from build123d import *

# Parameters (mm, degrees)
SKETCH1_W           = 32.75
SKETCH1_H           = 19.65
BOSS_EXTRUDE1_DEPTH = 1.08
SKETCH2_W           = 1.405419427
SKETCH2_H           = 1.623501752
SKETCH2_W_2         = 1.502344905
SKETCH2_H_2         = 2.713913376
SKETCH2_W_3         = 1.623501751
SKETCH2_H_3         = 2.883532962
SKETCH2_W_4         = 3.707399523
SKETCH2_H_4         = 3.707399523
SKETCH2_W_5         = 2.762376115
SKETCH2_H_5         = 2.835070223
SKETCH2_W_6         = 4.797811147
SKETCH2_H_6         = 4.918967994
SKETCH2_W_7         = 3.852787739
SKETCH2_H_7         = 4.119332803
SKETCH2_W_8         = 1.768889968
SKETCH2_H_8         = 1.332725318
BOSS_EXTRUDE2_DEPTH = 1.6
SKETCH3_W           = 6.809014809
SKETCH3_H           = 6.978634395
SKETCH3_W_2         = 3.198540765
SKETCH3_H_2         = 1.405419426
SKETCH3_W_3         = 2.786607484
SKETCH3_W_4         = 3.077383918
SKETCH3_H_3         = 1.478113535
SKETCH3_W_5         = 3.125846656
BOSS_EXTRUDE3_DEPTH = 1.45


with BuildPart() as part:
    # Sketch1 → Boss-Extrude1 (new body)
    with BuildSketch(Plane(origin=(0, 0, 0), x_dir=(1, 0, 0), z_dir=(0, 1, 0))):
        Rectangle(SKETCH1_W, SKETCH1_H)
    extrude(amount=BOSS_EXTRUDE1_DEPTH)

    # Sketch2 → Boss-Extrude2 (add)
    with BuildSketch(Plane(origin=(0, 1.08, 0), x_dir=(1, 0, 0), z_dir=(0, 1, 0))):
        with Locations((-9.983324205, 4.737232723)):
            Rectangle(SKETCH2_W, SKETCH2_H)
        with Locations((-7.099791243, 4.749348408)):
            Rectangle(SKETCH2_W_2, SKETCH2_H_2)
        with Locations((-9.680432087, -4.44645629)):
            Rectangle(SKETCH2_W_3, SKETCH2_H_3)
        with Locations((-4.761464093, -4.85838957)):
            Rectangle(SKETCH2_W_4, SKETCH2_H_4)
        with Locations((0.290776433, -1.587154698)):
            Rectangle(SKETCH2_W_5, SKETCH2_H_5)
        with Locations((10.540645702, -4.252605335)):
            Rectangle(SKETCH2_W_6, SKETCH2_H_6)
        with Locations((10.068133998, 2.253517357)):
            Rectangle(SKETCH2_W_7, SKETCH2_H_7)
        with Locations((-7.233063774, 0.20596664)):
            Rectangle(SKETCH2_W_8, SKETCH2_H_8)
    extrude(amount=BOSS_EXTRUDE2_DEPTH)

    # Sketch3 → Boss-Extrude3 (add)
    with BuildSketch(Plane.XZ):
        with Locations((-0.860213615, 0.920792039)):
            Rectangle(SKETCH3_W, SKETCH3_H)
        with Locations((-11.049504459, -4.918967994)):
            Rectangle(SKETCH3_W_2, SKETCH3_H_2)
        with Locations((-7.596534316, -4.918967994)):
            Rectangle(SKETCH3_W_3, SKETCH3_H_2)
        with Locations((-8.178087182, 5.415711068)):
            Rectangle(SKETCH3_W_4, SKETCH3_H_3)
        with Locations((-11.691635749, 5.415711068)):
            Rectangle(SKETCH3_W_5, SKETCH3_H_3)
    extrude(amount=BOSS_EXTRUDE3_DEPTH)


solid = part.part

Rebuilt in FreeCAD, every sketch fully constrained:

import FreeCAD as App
import Part
import Sketcher
from FreeCAD import Vector

doc = App.newDocument("Part")
body = doc.addObject("PartDesign::Body", "Body")

sketch1 = body.newObject("Sketcher::SketchObject", "Sketch")
sketch1.AttachmentSupport = (doc.getObject("XZ_Plane"), [""])
sketch1.MapMode = "FlatFace"
sketch1.addGeometry([
    Part.LineSegment(Vector(-16, -10, 0), Vector(-16, 10, 0)),
    Part.LineSegment(Vector(-16, 10, 0), Vector(16, 10, 0)),
    Part.LineSegment(Vector(16, 10, 0), Vector(16, -10, 0)),
    Part.LineSegment(Vector(16, -10, 0), Vector(-16, -10, 0)),
], False)
sketch1.addConstraint([
    Sketcher.Constraint("Coincident", 0, 2, 1, 1),
    Sketcher.Constraint("Coincident", 1, 2, 2, 1),
    Sketcher.Constraint("Coincident", 2, 2, 3, 1),
    Sketcher.Constraint("Coincident", 3, 2, 0, 1),
    Sketcher.Constraint("Vertical", 0),
    Sketcher.Constraint("Horizontal", 1),
    Sketcher.Constraint("Vertical", 2),
    Sketcher.Constraint("Horizontal", 3),
    Sketcher.Constraint("Symmetric", 0, 2, 2, 2, -1, 1),
    Sketcher.Constraint("DistanceX", 1, 1, 1, 2, 32.75),
    Sketcher.Constraint("DistanceY", 0, 1, 0, 2, 19.65),
])
pad1 = body.newObject("PartDesign::Pad", "Pad")
pad1.Profile = sketch1
pad1.Length = 1.08
pad1.Reversed = True

sketch2 = body.newObject("Sketcher::SketchObject", "Sketch001")
sketch2.AttachmentSupport = (doc.getObject("XZ_Plane"), [""])
sketch2.MapMode = "FlatFace"
sketch2.AttachmentOffset = App.Placement(Vector(0, 0, -1.08), App.Rotation())
sketch2.addGeometry([
    Part.LineSegment(Vector(-10.7, -5.5, 0), Vector(-10.7, -3.9, 0)),
    Part.LineSegment(Vector(-10.7, -3.9, 0), Vector(-9.3, -3.9, 0)),
    Part.LineSegment(Vector(-9.3, -3.9, 0), Vector(-9.3, -5.5, 0)),
    Part.LineSegment(Vector(-9.3, -5.5, 0), Vector(-10.7, -5.5, 0)),
    Part.LineSegment(Vector(-7.9, -6.1, 0), Vector(-7.9, -3.4, 0)),
    Part.LineSegment(Vector(-7.9, -3.4, 0), Vector(-6.3, -3.4, 0)),
    Part.LineSegment(Vector(-6.3, -3.4, 0), Vector(-6.3, -6.1, 0)),
    Part.LineSegment(Vector(-6.3, -6.1, 0), Vector(-7.9, -6.1, 0)),
    Part.LineSegment(Vector(-10.5, 3, 0), Vector(-10.5, 5.9, 0)),
    Part.LineSegment(Vector(-10.5, 5.9, 0), Vector(-8.9, 5.9, 0)),
    Part.LineSegment(Vector(-8.9, 5.9, 0), Vector(-8.9, 3, 0)),
    Part.LineSegment(Vector(-8.9, 3, 0), Vector(-10.5, 3, 0)),
    Part.LineSegment(Vector(-6.6, 3, 0), Vector(-6.6, 6.7, 0)),
    Part.LineSegment(Vector(-6.6, 6.7, 0), Vector(-2.9, 6.7, 0)),
    Part.LineSegment(Vector(-2.9, 6.7, 0), Vector(-2.9, 3, 0)),
    Part.LineSegment(Vector(-2.9, 3, 0), Vector(-6.6, 3, 0)),
    Part.LineSegment(Vector(-1.1, 0.2, 0), Vector(-1.1, 3, 0)),
    Part.LineSegment(Vector(-1.1, 3, 0), Vector(1.7, 3, 0)),
    Part.LineSegment(Vector(1.7, 3, 0), Vector(1.7, 0.2, 0)),
    Part.LineSegment(Vector(1.7, 0.2, 0), Vector(-1.1, 0.2, 0)),
    Part.LineSegment(Vector(8.1, 1.8, 0), Vector(8.1, 6.7, 0)),
    Part.LineSegment(Vector(8.1, 6.7, 0), Vector(12.9, 6.7, 0)),
    Part.LineSegment(Vector(12.9, 6.7, 0), Vector(12.9, 1.8, 0)),
    Part.LineSegment(Vector(12.9, 1.8, 0), Vector(8.1, 1.8, 0)),
    Part.LineSegment(Vector(8.1, -4.3, 0), Vector(8.1, -0.2, 0)),
    Part.LineSegment(Vector(8.1, -0.2, 0), Vector(12, -0.2, 0)),
    Part.LineSegment(Vector(12, -0.2, 0), Vector(12, -4.3, 0)),
    Part.LineSegment(Vector(12, -4.3, 0), Vector(8.1, -4.3, 0)),
    Part.LineSegment(Vector(-8.1, -0.9, 0), Vector(-8.1, 0.5, 0)),
    Part.LineSegment(Vector(-8.1, 0.5, 0), Vector(-6.3, 0.5, 0)),
    Part.LineSegment(Vector(-6.3, 0.5, 0), Vector(-6.3, -0.9, 0)),
    Part.LineSegment(Vector(-6.3, -0.9, 0), Vector(-8.1, -0.9, 0)),
], False)
sketch2.addConstraint([
    Sketcher.Constraint("Coincident", 0, 2, 1, 1),
    Sketcher.Constraint("Coincident", 1, 2, 2, 1),
    Sketcher.Constraint("Coincident", 2, 2, 3, 1),
    Sketcher.Constraint("Coincident", 3, 2, 0, 1),
    Sketcher.Constraint("Coincident", 4, 2, 5, 1),
    Sketcher.Constraint("Coincident", 5, 2, 6, 1),
    Sketcher.Constraint("Coincident", 6, 2, 7, 1),
    Sketcher.Constraint("Coincident", 7, 2, 4, 1),
    Sketcher.Constraint("Coincident", 8, 2, 9, 1),
    Sketcher.Constraint("Coincident", 9, 2, 10, 1),
    Sketcher.Constraint("Coincident", 10, 2, 11, 1),
    Sketcher.Constraint("Coincident", 11, 2, 8, 1),
    Sketcher.Constraint("Coincident", 12, 2, 13, 1),
    Sketcher.Constraint("Coincident", 13, 2, 14, 1),
    Sketcher.Constraint("Coincident", 14, 2, 15, 1),
    Sketcher.Constraint("Coincident", 15, 2, 12, 1),
    Sketcher.Constraint("Coincident", 16, 2, 17, 1),
    Sketcher.Constraint("Coincident", 17, 2, 18, 1),
    Sketcher.Constraint("Coincident", 18, 2, 19, 1),
    Sketcher.Constraint("Coincident", 19, 2, 16, 1),
    Sketcher.Constraint("Coincident", 20, 2, 21, 1),
    Sketcher.Constraint("Coincident", 21, 2, 22, 1),
    Sketcher.Constraint("Coincident", 22, 2, 23, 1),
    Sketcher.Constraint("Coincident", 23, 2, 20, 1),
    Sketcher.Constraint("Coincident", 24, 2, 25, 1),
    Sketcher.Constraint("Coincident", 25, 2, 26, 1),
    Sketcher.Constraint("Coincident", 26, 2, 27, 1),
    Sketcher.Constraint("Coincident", 27, 2, 24, 1),
    Sketcher.Constraint("Coincident", 28, 2, 29, 1),
    Sketcher.Constraint("Coincident", 29, 2, 30, 1),
    Sketcher.Constraint("Coincident", 30, 2, 31, 1),
    Sketcher.Constraint("Coincident", 31, 2, 28, 1),
    Sketcher.Constraint("Vertical", 0),
    Sketcher.Constraint("Horizontal", 1),
    Sketcher.Constraint("Vertical", 2),
    Sketcher.Constraint("Horizontal", 3),
    Sketcher.Constraint("Vertical", 4),
    Sketcher.Constraint("Horizontal", 5),
    Sketcher.Constraint("Vertical", 6),
    Sketcher.Constraint("Horizontal", 7),
    Sketcher.Constraint("Vertical", 8),
    Sketcher.Constraint("Horizontal", 9),
    Sketcher.Constraint("Vertical", 10),
    Sketcher.Constraint("Horizontal", 11),
    Sketcher.Constraint("Vertical", 12),
    Sketcher.Constraint("Horizontal", 13),
    Sketcher.Constraint("Vertical", 14),
    Sketcher.Constraint("Horizontal", 15),
    Sketcher.Constraint("Vertical", 16),
    Sketcher.Constraint("Horizontal", 17),
    Sketcher.Constraint("Vertical", 18),
    Sketcher.Constraint("Horizontal", 19),
    Sketcher.Constraint("Vertical", 20),
    Sketcher.Constraint("Horizontal", 21),
    Sketcher.Constraint("Vertical", 22),
    Sketcher.Constraint("Horizontal", 23),
    Sketcher.Constraint("Vertical", 24),
    Sketcher.Constraint("Horizontal", 25),
    Sketcher.Constraint("Vertical", 26),
    Sketcher.Constraint("Horizontal", 27),
    Sketcher.Constraint("Vertical", 28),
    Sketcher.Constraint("Horizontal", 29),
    Sketcher.Constraint("Vertical", 30),
    Sketcher.Constraint("Horizontal", 31),
    Sketcher.Constraint("Horizontal", 11, 2, 14, 2),
    Sketcher.Constraint("Horizontal", 15, 2, 16, 2),
    Sketcher.Constraint("Horizontal", 13, 2, 20, 2),
    Sketcher.Constraint("Vertical", 23, 2, 24, 2),
    Sketcher.Constraint("Vertical", 6, 2, 29, 2),
    Sketcher.Constraint("Equal", 11, 0),
    Sketcher.Constraint("Equal", 15, 12),
    Sketcher.Constraint("DistanceX", 9, 1, 9, 2, 1.623502),
    Sketcher.Constraint("DistanceX", 13, 1, 13, 2, 3.7074),
    Sketcher.Constraint("DistanceX", 1, 1, 1, 2, 1.405419),
    Sketcher.Constraint("DistanceX", 21, 1, 21, 2, 4.797811),
    Sketcher.Constraint("DistanceX", 29, 1, 29, 2, 1.76889),
    Sketcher.Constraint("DistanceY", 16, 1, 16, 2, 2.83507),
    Sketcher.Constraint("DistanceY", 18, 2, 22, 2, 1.623502),
    Sketcher.Constraint("DistanceX", 5, 1, 5, 2, 1.502345),
    Sketcher.Constraint("DistanceX", 17, 1, 17, 2, 2.762376),
    Sketcher.Constraint("DistanceX", 25, 1, 25, 2, 3.852788),
    Sketcher.Constraint("DistanceY", 4, 1, 4, 2, 2.713913),
    Sketcher.Constraint("DistanceY", 8, 1, 8, 2, 2.883533),
    Sketcher.Constraint("DistanceY", 24, 1, 24, 2, 4.119333),
    Sketcher.Constraint("DistanceY", 28, 1, 28, 2, 1.332725),
    Sketcher.Constraint("DistanceY", 0, 2, -1, 1, 3.925482),
    Sketcher.Constraint("DistanceY", 4, 2, -1, 1, 3.392392),
    Sketcher.Constraint("DistanceX", 5, 2, -1, 1, 6.348619),
    Sketcher.Constraint("DistanceX", 9, 2, -1, 1, 8.868681),
    Sketcher.Constraint("DistanceY", -1, 1, 10, 2, 3.00469),
    Sketcher.Constraint("DistanceX", 16, 2, -1, 1, 1.090412),
    Sketcher.Constraint("DistanceX", -1, 1, 20, 2, 8.14174),
    Sketcher.Constraint("DistanceY", 24, 2, -1, 1, 0.193851),
    Sketcher.Constraint("DistanceY", 30, 2, -1, 1, 0.872329),
    Sketcher.Constraint("DistanceX", 1, 2, 4, 2, 1.429651),
    Sketcher.Constraint("DistanceX", 8, 2, 12, 2, 3.877019),
])
pad2 = body.newObject("PartDesign::Pad", "Pad001")
pad2.Profile = sketch2
pad2.Length = 1.6
pad2.Reversed = True

sketch3 = body.newObject("Sketcher::SketchObject", "Sketch002")
sketch3.AttachmentSupport = (doc.getObject("XZ_Plane"), [""])
sketch3.MapMode = "FlatFace"
sketch3.addGeometry([
    Part.LineSegment(Vector(-4.3, 4.4, 0), Vector(-4.3, -2.6, 0)),
    Part.LineSegment(Vector(-4.3, -2.6, 0), Vector(2.5, -2.6, 0)),
    Part.LineSegment(Vector(2.5, -2.6, 0), Vector(2.5, 4.4, 0)),
    Part.LineSegment(Vector(2.5, 4.4, 0), Vector(-4.3, 4.4, 0)),
    Part.LineSegment(Vector(-12.6, -4.2, 0), Vector(-12.6, -5.6, 0)),
    Part.LineSegment(Vector(-12.6, -5.6, 0), Vector(-9.5, -5.6, 0)),
    Part.LineSegment(Vector(-9.5, -5.6, 0), Vector(-9.5, -4.2, 0)),
    Part.LineSegment(Vector(-9.5, -4.2, 0), Vector(-12.6, -4.2, 0)),
    Part.LineSegment(Vector(-9, -4.2, 0), Vector(-9, -5.6, 0)),
    Part.LineSegment(Vector(-9, -5.6, 0), Vector(-6.2, -5.6, 0)),
    Part.LineSegment(Vector(-6.2, -5.6, 0), Vector(-6.2, -4.2, 0)),
    Part.LineSegment(Vector(-6.2, -4.2, 0), Vector(-9, -4.2, 0)),
    Part.LineSegment(Vector(-9.7, 6.2, 0), Vector(-9.7, 4.7, 0)),
    Part.LineSegment(Vector(-9.7, 4.7, 0), Vector(-6.6, 4.7, 0)),
    Part.LineSegment(Vector(-6.6, 4.7, 0), Vector(-6.6, 6.2, 0)),
    Part.LineSegment(Vector(-6.6, 6.2, 0), Vector(-9.7, 6.2, 0)),
    Part.LineSegment(Vector(-13.3, 6.2, 0), Vector(-13.3, 4.7, 0)),
    Part.LineSegment(Vector(-13.3, 4.7, 0), Vector(-10.1, 4.7, 0)),
    Part.LineSegment(Vector(-10.1, 4.7, 0), Vector(-10.1, 6.2, 0)),
    Part.LineSegment(Vector(-10.1, 6.2, 0), Vector(-13.3, 6.2, 0)),
], False)
sketch3.addConstraint([
    Sketcher.Constraint("Coincident", 0, 2, 1, 1),
    Sketcher.Constraint("Coincident", 1, 2, 2, 1),
    Sketcher.Constraint("Coincident", 2, 2, 3, 1),
    Sketcher.Constraint("Coincident", 3, 2, 0, 1),
    Sketcher.Constraint("Coincident", 4, 2, 5, 1),
    Sketcher.Constraint("Coincident", 5, 2, 6, 1),
    Sketcher.Constraint("Coincident", 6, 2, 7, 1),
    Sketcher.Constraint("Coincident", 7, 2, 4, 1),
    Sketcher.Constraint("Coincident", 8, 2, 9, 1),
    Sketcher.Constraint("Coincident", 9, 2, 10, 1),
    Sketcher.Constraint("Coincident", 10, 2, 11, 1),
    Sketcher.Constraint("Coincident", 11, 2, 8, 1),
    Sketcher.Constraint("Coincident", 12, 2, 13, 1),
    Sketcher.Constraint("Coincident", 13, 2, 14, 1),
    Sketcher.Constraint("Coincident", 14, 2, 15, 1),
    Sketcher.Constraint("Coincident", 15, 2, 12, 1),
    Sketcher.Constraint("Coincident", 16, 2, 17, 1),
    Sketcher.Constraint("Coincident", 17, 2, 18, 1),
    Sketcher.Constraint("Coincident", 18, 2, 19, 1),
    Sketcher.Constraint("Coincident", 19, 2, 16, 1),
    Sketcher.Constraint("Vertical", 0),
    Sketcher.Constraint("Horizontal", 1),
    Sketcher.Constraint("Vertical", 2),
    Sketcher.Constraint("Horizontal", 3),
    Sketcher.Constraint("Vertical", 4),
    Sketcher.Constraint("Horizontal", 5),
    Sketcher.Constraint("Vertical", 6),
    Sketcher.Constraint("Horizontal", 7),
    Sketcher.Constraint("Vertical", 8),
    Sketcher.Constraint("Horizontal", 9),
    Sketcher.Constraint("Vertical", 10),
    Sketcher.Constraint("Horizontal", 11),
    Sketcher.Constraint("Vertical", 12),
    Sketcher.Constraint("Horizontal", 13),
    Sketcher.Constraint("Vertical", 14),
    Sketcher.Constraint("Horizontal", 15),
    Sketcher.Constraint("Vertical", 16),
    Sketcher.Constraint("Horizontal", 17),
    Sketcher.Constraint("Vertical", 18),
    Sketcher.Constraint("Horizontal", 19),
    Sketcher.Constraint("Horizontal", 5, 2, 8, 2),
    Sketcher.Constraint("Horizontal", 7, 2, 10, 2),
    Sketcher.Constraint("Horizontal", 13, 2, 16, 2),
    Sketcher.Constraint("Horizontal", 15, 2, 18, 2),
    Sketcher.Constraint("DistanceX", 5, 1, 5, 2, 3.198541),
    Sketcher.Constraint("DistanceY", 4, 2, 4, 1, 1.405419),
    Sketcher.Constraint("DistanceX", 1, 1, 1, 2, 6.809015),
    Sketcher.Constraint("DistanceX", 9, 1, 9, 2, 2.786607),
    Sketcher.Constraint("DistanceX", 13, 1, 13, 2, 3.077384),
    Sketcher.Constraint("DistanceX", 17, 1, 17, 2, 3.125847),
    Sketcher.Constraint("DistanceY", 0, 2, 0, 1, 6.978634),
    Sketcher.Constraint("DistanceY", 12, 2, 12, 1, 1.478114),
    Sketcher.Constraint("DistanceX", 0, 2, -1, 1, 4.264721),
    Sketcher.Constraint("DistanceY", -1, 1, 2, 2, 4.410109),
    Sketcher.Constraint("DistanceY", 6, 2, -1, 1, 4.216258),
    Sketcher.Constraint("DistanceX", 8, 2, -1, 1, 8.989838),
    Sketcher.Constraint("DistanceX", 12, 2, -1, 1, 9.716779),
    Sketcher.Constraint("DistanceX", 16, 2, -1, 1, 13.254559),
    Sketcher.Constraint("DistanceX", 4, 2, 1, 2, 15.193069),
    Sketcher.Constraint("DistanceY", 0, 2, 12, 2, 7.245179),
])
pad3 = body.newObject("PartDesign::Pad", "Pad002")
pad3.Profile = sketch3
pad3.Length = 1.45

doc.recompute()
